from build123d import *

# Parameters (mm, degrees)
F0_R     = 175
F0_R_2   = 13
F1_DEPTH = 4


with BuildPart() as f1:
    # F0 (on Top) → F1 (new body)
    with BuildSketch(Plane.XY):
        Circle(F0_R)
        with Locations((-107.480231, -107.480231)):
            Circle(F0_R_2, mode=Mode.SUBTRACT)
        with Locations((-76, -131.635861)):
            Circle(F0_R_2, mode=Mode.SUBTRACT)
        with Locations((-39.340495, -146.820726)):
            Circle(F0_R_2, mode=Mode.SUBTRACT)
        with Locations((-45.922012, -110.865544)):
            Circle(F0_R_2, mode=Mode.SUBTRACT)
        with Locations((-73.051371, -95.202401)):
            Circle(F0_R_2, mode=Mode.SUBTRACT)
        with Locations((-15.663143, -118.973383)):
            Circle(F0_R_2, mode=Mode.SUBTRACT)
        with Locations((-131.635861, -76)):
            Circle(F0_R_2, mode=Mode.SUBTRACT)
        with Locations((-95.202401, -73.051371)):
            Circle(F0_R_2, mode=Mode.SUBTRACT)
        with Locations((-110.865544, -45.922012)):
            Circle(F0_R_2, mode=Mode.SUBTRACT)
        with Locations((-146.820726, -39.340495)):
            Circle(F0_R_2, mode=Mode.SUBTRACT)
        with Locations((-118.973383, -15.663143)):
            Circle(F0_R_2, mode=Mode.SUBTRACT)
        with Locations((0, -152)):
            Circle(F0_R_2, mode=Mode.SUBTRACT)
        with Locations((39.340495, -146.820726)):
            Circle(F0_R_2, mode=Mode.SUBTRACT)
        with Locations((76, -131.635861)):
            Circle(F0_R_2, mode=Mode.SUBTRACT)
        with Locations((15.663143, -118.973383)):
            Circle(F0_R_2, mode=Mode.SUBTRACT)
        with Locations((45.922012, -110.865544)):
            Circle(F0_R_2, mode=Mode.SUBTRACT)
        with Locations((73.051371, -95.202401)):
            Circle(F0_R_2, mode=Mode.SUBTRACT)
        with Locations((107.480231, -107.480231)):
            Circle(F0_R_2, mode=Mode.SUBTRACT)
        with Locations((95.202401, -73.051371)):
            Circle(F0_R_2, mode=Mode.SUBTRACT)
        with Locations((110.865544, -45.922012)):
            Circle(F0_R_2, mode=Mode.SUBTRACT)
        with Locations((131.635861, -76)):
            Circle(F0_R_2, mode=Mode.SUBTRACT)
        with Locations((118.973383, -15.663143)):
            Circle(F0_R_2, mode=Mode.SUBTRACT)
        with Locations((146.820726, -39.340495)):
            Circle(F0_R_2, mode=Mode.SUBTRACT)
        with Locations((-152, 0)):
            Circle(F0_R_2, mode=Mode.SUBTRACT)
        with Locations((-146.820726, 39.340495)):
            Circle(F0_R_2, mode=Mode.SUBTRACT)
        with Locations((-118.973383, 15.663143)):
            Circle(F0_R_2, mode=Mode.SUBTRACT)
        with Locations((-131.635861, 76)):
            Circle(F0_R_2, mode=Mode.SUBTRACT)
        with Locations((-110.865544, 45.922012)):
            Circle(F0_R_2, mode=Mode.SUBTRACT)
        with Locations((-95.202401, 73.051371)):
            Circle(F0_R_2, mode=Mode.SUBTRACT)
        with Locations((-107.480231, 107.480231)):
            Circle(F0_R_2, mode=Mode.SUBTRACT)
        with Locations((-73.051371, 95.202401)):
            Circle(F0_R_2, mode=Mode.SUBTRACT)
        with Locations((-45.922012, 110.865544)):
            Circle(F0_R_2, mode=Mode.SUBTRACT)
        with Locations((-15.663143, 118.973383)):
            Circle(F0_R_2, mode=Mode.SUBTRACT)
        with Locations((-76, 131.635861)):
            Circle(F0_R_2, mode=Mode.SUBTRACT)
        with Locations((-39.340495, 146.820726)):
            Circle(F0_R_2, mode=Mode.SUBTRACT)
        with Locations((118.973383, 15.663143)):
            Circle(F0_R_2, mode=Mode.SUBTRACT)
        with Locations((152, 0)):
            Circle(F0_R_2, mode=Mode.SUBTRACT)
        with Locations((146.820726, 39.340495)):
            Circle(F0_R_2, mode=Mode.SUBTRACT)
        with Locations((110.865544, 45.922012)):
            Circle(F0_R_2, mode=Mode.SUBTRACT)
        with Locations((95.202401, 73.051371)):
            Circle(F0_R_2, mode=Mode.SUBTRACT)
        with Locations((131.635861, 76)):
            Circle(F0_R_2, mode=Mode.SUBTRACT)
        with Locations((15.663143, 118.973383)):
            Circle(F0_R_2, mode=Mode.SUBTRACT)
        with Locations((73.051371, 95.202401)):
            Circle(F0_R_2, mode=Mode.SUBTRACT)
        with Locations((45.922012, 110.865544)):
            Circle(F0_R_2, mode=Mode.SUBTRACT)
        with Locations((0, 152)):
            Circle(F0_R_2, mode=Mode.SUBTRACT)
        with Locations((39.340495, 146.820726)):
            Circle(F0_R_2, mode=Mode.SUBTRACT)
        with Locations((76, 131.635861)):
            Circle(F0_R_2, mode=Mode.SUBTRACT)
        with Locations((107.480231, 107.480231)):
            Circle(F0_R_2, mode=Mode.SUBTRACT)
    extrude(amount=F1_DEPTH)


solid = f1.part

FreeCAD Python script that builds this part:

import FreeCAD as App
import Part
import Sketcher

doc = App.newDocument("Part")
body = doc.addObject("PartDesign::Body", "Body")

# Sketch on XY plane
sketch1 = body.newObject("Sketcher::SketchObject", "Sketch")
sketch1.AttachmentSupport = (doc.getObject("XY_Plane"), [""])
sketch1.MapMode = "FlatFace"
sketch1.addGeometry([
    Part.Circle(App.Vector(0, 0, 0), App.Vector(0, 0, 1), 175),  # 0
    Part.Circle(App.Vector(-107.480231, -107.480231, 0), App.Vector(0, 0, 1), 13),  # 1
    Part.Circle(App.Vector(-76, -131.635861, 0), App.Vector(0, 0, 1), 13),  # 2
    Part.Circle(App.Vector(-39.340495, -146.820726, 0), App.Vector(0, 0, 1), 13),  # 3
    Part.Circle(App.Vector(-45.922012, -110.865544, 0), App.Vector(0, 0, 1), 13),  # 4
    Part.Circle(App.Vector(-73.051371, -95.202401, 0), App.Vector(0, 0, 1), 13),  # 5
    Part.Circle(App.Vector(-15.663143, -118.973383, 0), App.Vector(0, 0, 1), 13),  # 6
    Part.Circle(App.Vector(-131.635861, -76, 0), App.Vector(0, 0, 1), 13),  # 7
    Part.Circle(App.Vector(-95.202401, -73.051371, 0), App.Vector(0, 0, 1), 13),  # 8
    Part.Circle(App.Vector(-110.865544, -45.922012, 0), App.Vector(0, 0, 1), 13),  # 9
    Part.Circle(App.Vector(-146.820726, -39.340495, 0), App.Vector(0, 0, 1), 13),  # 10
    Part.Circle(App.Vector(-118.973383, -15.663143, 0), App.Vector(0, 0, 1), 13),  # 11
    Part.Circle(App.Vector(0, -152, 0), App.Vector(0, 0, 1), 13),  # 12
    Part.Circle(App.Vector(39.340495, -146.820726, 0), App.Vector(0, 0, 1), 13),  # 13
    Part.Circle(App.Vector(76, -131.635861, 0), App.Vector(0, 0, 1), 13),  # 14
    Part.Circle(App.Vector(15.663143, -118.973383, 0), App.Vector(0, 0, 1), 13),  # 15
    Part.Circle(App.Vector(45.922012, -110.865544, 0), App.Vector(0, 0, 1), 13),  # 16
    Part.Circle(App.Vector(73.051371, -95.202401, 0), App.Vector(0, 0, 1), 13),  # 17
    Part.Circle(App.Vector(107.480231, -107.480231, 0), App.Vector(0, 0, 1), 13),  # 18
    Part.Circle(App.Vector(95.202401, -73.051371, 0), App.Vector(0, 0, 1), 13),  # 19
    Part.Circle(App.Vector(110.865544, -45.922012, 0), App.Vector(0, 0, 1), 13),  # 20
    Part.Circle(App.Vector(131.635861, -76, 0), App.Vector(0, 0, 1), 13),  # 21
    Part.Circle(App.Vector(118.973383, -15.663143, 0), App.Vector(0, 0, 1), 13),  # 22
    Part.Circle(App.Vector(146.820726, -39.340495, 0), App.Vector(0, 0, 1), 13),  # 23
    Part.Circle(App.Vector(-152, 0, 0), App.Vector(0, 0, 1), 13),  # 24
    Part.Circle(App.Vector(-146.820726, 39.340495, 0), App.Vector(0, 0, 1), 13),  # 25
    Part.Circle(App.Vector(-118.973383, 15.663143, 0), App.Vector(0, 0, 1), 13),  # 26
    Part.Circle(App.Vector(-131.635861, 76, 0), App.Vector(0, 0, 1), 13),  # 27
    Part.Circle(App.Vector(-110.865544, 45.922012, 0), App.Vector(0, 0, 1), 13),  # 28
    Part.Circle(App.Vector(-95.202401, 73.051371, 0), App.Vector(0, 0, 1), 13),  # 29
    Part.Circle(App.Vector(-107.480231, 107.480231, 0), App.Vector(0, 0, 1), 13),  # 30
    Part.Circle(App.Vector(-73.051371, 95.202401, 0), App.Vector(0, 0, 1), 13),  # 31
    Part.Circle(App.Vector(-45.922012, 110.865544, 0), App.Vector(0, 0, 1), 13),  # 32
    Part.Circle(App.Vector(-15.663143, 118.973383, 0), App.Vector(0, 0, 1), 13),  # 33
    Part.Circle(App.Vector(-76, 131.635861, 0), App.Vector(0, 0, 1), 13),  # 34
    Part.Circle(App.Vector(-39.340495, 146.820726, 0), App.Vector(0, 0, 1), 13),  # 35
    Part.Circle(App.Vector(118.973383, 15.663143, 0), App.Vector(0, 0, 1), 13),  # 36
    Part.Circle(App.Vector(152, 0, 0), App.Vector(0, 0, 1), 13),  # 37
    Part.Circle(App.Vector(146.820726, 39.340495, 0), App.Vector(0, 0, 1), 13),  # 38
    Part.Circle(App.Vector(110.865544, 45.922012, 0), App.Vector(0, 0, 1), 13),  # 39
    Part.Circle(App.Vector(95.202401, 73.051371, 0), App.Vector(0, 0, 1), 13),  # 40
    Part.Circle(App.Vector(131.635861, 76, 0), App.Vector(0, 0, 1), 13),  # 41
    Part.Circle(App.Vector(15.663143, 118.973383, 0), App.Vector(0, 0, 1), 13),  # 42
    Part.Circle(App.Vector(73.051371, 95.202401, 0), App.Vector(0, 0, 1), 13),  # 43
    Part.Circle(App.Vector(45.922012, 110.865544, 0), App.Vector(0, 0, 1), 13),  # 44
    Part.Circle(App.Vector(0, 152, 0), App.Vector(0, 0, 1), 13),  # 45
    Part.Circle(App.Vector(39.340495, 146.820726, 0), App.Vector(0, 0, 1), 13),  # 46
    Part.Circle(App.Vector(76, 131.635861, 0), App.Vector(0, 0, 1), 13),  # 47
    Part.Circle(App.Vector(107.480231, 107.480231, 0), App.Vector(0, 0, 1), 13),  # 48
], False)
sketch1.addConstraint([
    Sketcher.Constraint("Coincident", 0, 3, -1, 1),
    Sketcher.Constraint("Equal", 1, 2),
    Sketcher.Constraint("Equal", 2, 3),
    Sketcher.Constraint("Equal", 3, 4),
    Sketcher.Constraint("Equal", 4, 5),
    Sketcher.Constraint("Equal", 5, 6),
    Sketcher.Constraint("Equal", 6, 7),
    Sketcher.Constraint("Equal", 7, 8),
    Sketcher.Constraint("Equal", 8, 9),
    Sketcher.Constraint("Equal", 9, 10),
    Sketcher.Constraint("Equal", 10, 11),
    Sketcher.Constraint("Equal", 11, 12),
    Sketcher.Constraint("Equal", 12, 13),
    Sketcher.Constraint("Equal", 13, 14),
    Sketcher.Constraint("Equal", 14, 15),
    Sketcher.Constraint("Equal", 15, 16),
    Sketcher.Constraint("Equal", 16, 17),
    Sketcher.Constraint("Equal", 17, 18),
    Sketcher.Constraint("Equal", 18, 19),
    Sketcher.Constraint("Equal", 19, 20),
    Sketcher.Constraint("Equal", 20, 21),
    Sketcher.Constraint("Equal", 21, 22),
    Sketcher.Constraint("Equal", 22, 23),
    Sketcher.Constraint("Equal", 23, 24),
    Sketcher.Constraint("Equal", 24, 25),
    Sketcher.Constraint("Equal", 25, 26),
    Sketcher.Constraint("Equal", 26, 27),
    Sketcher.Constraint("Equal", 27, 28),
    Sketcher.Constraint("Equal", 28, 29),
    Sketcher.Constraint("Equal", 29, 30),
    Sketcher.Constraint("Equal", 30, 31),
    Sketcher.Constraint("Equal", 31, 32),
    Sketcher.Constraint("Equal", 32, 33),
    Sketcher.Constraint("Equal", 33, 34),
    Sketcher.Constraint("Equal", 34, 35),
    Sketcher.Constraint("Equal", 35, 36),
    Sketcher.Constraint("Equal", 36, 37),
    Sketcher.Constraint("Equal", 37, 38),
    Sketcher.Constraint("Equal", 38, 39),
    Sketcher.Constraint("Equal", 39, 40),
    Sketcher.Constraint("Equal", 40, 41),
    Sketcher.Constraint("Equal", 41, 42),
    Sketcher.Constraint("Equal", 42, 43),
    Sketcher.Constraint("Equal", 43, 44),
    Sketcher.Constraint("Equal", 44, 45),
    Sketcher.Constraint("Equal", 45, 46),
    Sketcher.Constraint("Equal", 46, 47),
    Sketcher.Constraint("Equal", 47, 48),
    Sketcher.Constraint("Symmetric", 23, 3, 25, 3, -1, 1),
    Sketcher.Constraint("Symmetric", 22, 3, 26, 3, -1, 1),
    Sketcher.Constraint("Symmetric", 21, 3, 27, 3, -1, 1),
    Sketcher.Constraint("Symmetric", 20, 3, 28, 3, -1, 1),
    Sketcher.Constraint("Symmetric", 19, 3, 29, 3, -1, 1),
    Sketcher.Constraint("Symmetric", 18, 3, 30, 3, -1, 1),
    Sketcher.Constraint("Symmetric", 17, 3, 31, 3, -1, 1),
    Sketcher.Constraint("Symmetric", 16, 3, 32, 3, -1, 1),
    Sketcher.Constraint("Symmetric", 15, 3, 33, 3, -1, 1),
    Sketcher.Constraint("Symmetric", 14, 3, 34, 3, -1, 1),
    Sketcher.Constraint("Symmetric", 13, 3, 35, 3, -1, 1),
    Sketcher.Constraint("Symmetric", 11, 3, 36, 3, -1, 1),
    Sketcher.Constraint("Symmetric", 24, 3, 37, 3, -1, 1),
    Sketcher.Constraint("Symmetric", 10, 3, 38, 3, -1, 1),
    Sketcher.Constraint("Symmetric", 9, 3, 39, 3, -1, 1),
    Sketcher.Constraint("Symmetric", 8, 3, 40, 3, -1, 1),
    Sketcher.Constraint("Symmetric", 7, 3, 41, 3, -1, 1),
    Sketcher.Constraint("Symmetric", 6, 3, 42, 3, -1, 1),
    Sketcher.Constraint("Symmetric", 5, 3, 43, 3, -1, 1),
    Sketcher.Constraint("Symmetric", 4, 3, 44, 3, -1, 1),
    Sketcher.Constraint("Symmetric", 12, 3, 45, 3, -1, 1),
    Sketcher.Constraint("Symmetric", 3, 3, 46, 3, -1, 1),
    Sketcher.Constraint("Symmetric", 2, 3, 47, 3, -1, 1),
    Sketcher.Constraint("Symmetric", 1, 3, 48, 3, -1, 1),
    Sketcher.Constraint("Symmetric", 3, 3, 13, 3, -2),
    Sketcher.Constraint("Symmetric", 2, 3, 14, 3, -2),
    Sketcher.Constraint("Symmetric", 6, 3, 15, 3, -2),
    Sketcher.Constraint("Symmetric", 4, 3, 16, 3, -2),
    Sketcher.Constraint("Symmetric", 5, 3, 17, 3, -2),
    Sketcher.Constraint("Symmetric", 1, 3, 18, 3, -2),
    Sketcher.Constraint("Symmetric", 8, 3, 19, 3, -2),
    Sketcher.Constraint("Symmetric", 9, 3, 20, 3, -2),
    Sketcher.Constraint("Symmetric", 7, 3, 21, 3, -2),
    Sketcher.Constraint("Symmetric", 11, 3, 22, 3, -2),
    Sketcher.Constraint("Symmetric", 10, 3, 23, 3, -2),
    Sketcher.Constraint("PointOnObject", 12, 3, -2),
    Sketcher.Constraint("PointOnObject", 24, 3, -1),
    Sketcher.Constraint("Diameter", 0, 350.0),
    Sketcher.Constraint("Diameter", 1, 26.0),
    Sketcher.Constraint("DistanceX", 2, 3, -1, 1, 76.0),
    Sketcher.Constraint("DistanceY", 7, 3, -1, 1, 76.0),
    Sketcher.Constraint("DistanceY", 12, 3, -1, 1, 152.0),
    Sketcher.Constraint("DistanceX", 24, 3, -1, 1, 152.0),
    Sketcher.Constraint("DistanceY", 5, 3, -1, 1, 95.202401),
    Sketcher.Constraint("DistanceX", 8, 3, -1, 1, 95.202401),
    Sketcher.Constraint("DistanceX", 1, 3, -1, 1, 107.480231),
    Sketcher.Constraint("DistanceY", 1, 3, -1, 1, 107.480231),
    Sketcher.Constraint("DistanceY", 2, 3, -1, 1, 131.635861),
    Sketcher.Constraint("DistanceX", 5, 3, -1, 1, 73.051371),
    Sketcher.Constraint("DistanceX", 7, 3, -1, 1, 131.635861),
    Sketcher.Constraint("DistanceY", 8, 3, -1, 1, 73.051371),
    Sketcher.Constraint("DistanceX", 1, 3, 4, 3, 61.558219),
    Sketcher.Constraint("DistanceX", 4, 3, 6, 3, 30.258869),
    Sketcher.Constraint("DistanceY", 6, 3, 4, 3, 8.107839),
    Sketcher.Constraint("DistanceX", 3, 3, 6, 3, 23.677352),
    Sketcher.Constraint("DistanceY", 2, 3, 6, 3, 12.662478),
    Sketcher.Constraint("DistanceY", 8, 3, 9, 3, 27.129359),
    Sketcher.Constraint("DistanceX", 11, 3, 9, 3, 8.107839),
    Sketcher.Constraint("DistanceY", 9, 3, 11, 3, 30.258869),
    Sketcher.Constraint("DistanceY", 10, 3, 11, 3, 23.677352),
    Sketcher.Constraint("DistanceX", 7, 3, 11, 3, 12.662478),
    Sketcher.Constraint("DistanceY", 3, 3, -1, 1, 146.820726),
    Sketcher.Constraint("DistanceX", 10, 3, -1, 1, 146.820726),
])
pad1 = body.newObject("PartDesign::Pad", "Pad")
pad1.Profile = sketch1
pad1.Length = 4

doc.recompute()
